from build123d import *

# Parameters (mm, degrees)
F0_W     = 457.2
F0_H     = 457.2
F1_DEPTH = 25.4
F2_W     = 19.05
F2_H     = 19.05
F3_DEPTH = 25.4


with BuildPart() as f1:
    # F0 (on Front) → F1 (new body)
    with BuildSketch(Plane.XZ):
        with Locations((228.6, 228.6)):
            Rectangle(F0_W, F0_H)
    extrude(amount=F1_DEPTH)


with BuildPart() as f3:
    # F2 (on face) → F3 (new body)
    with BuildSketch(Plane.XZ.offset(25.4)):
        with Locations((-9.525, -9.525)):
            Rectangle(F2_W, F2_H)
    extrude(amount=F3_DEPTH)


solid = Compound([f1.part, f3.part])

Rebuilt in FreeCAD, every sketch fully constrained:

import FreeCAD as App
import Part
import Sketcher

V = App.Vector
Q = App.Units.Quantity

doc = App.newDocument("Part")
body = doc.addObject("PartDesign::Body", "Body")

# Sketch on XZ plane
sketch1 = body.newObject("Sketcher::SketchObject", "Sketch")
sketch1.AttachmentSupport = (doc.getObject("XZ_Plane"), [""])
sketch1.MapMode = "FlatFace"
sketch1.addGeometry(Part.LineSegment(V(0, 457, 0), V(0, 0, 0)), False)
sketch1.addGeometry(Part.LineSegment(V(0, 0, 0), V(457, 0, 0)), False)
sketch1.addGeometry(Part.LineSegment(V(457, 0, 0), V(457, 457, 0)), False)
sketch1.addGeometry(Part.LineSegment(V(457, 457, 0), V(0, 457, 0)), False)
sketch1.addConstraint(Sketcher.Constraint("Coincident", 0, 2, 1, 1))
sketch1.addConstraint(Sketcher.Constraint("Coincident", 1, 2, 2, 1))
sketch1.addConstraint(Sketcher.Constraint("Coincident", 2, 2, 3, 1))
sketch1.addConstraint(Sketcher.Constraint("Coincident", 3, 2, 0, 1))
sketch1.addConstraint(Sketcher.Constraint("Vertical", 0))
sketch1.addConstraint(Sketcher.Constraint("Horizontal", 1))
sketch1.addConstraint(Sketcher.Constraint("Vertical", 2))
sketch1.addConstraint(Sketcher.Constraint("Horizontal", 3))
sketch1.addConstraint(Sketcher.Constraint("Coincident", 0, 2, -1, 1))
sketch1.addConstraint(Sketcher.Constraint("Equal", 3, 0))
sketch1.addConstraint(Sketcher.Constraint("DistanceX", 1, 1, 1, 2, Q("18 in")))
pad1 = body.newObject("PartDesign::Pad", "Pad")
pad1.Profile = sketch1
pad1.Length = Q("1 in")
body2 = doc.addObject("PartDesign::Body", "Body001")

# Sketch on XZ plane
sketch2 = body2.newObject("Sketcher::SketchObject", "Sketch001")
sketch2.AttachmentSupport = (doc.getObject("XZ_Plane001"), [""])
sketch2.MapMode = "FlatFace"
sketch2.AttachmentOffset = App.Placement(V(0, 0, 1 * 25.4), App.Rotation())
sketch2.addGeometry(Part.LineSegment(V(-19, 0, 0), V(-19, -19, 0)), False)
sketch2.addGeometry(Part.LineSegment(V(-19, -19, 0), V(0, -19, 0)), False)
sketch2.addGeometry(Part.LineSegment(V(0, -19, 0), V(0, 0, 0)), False)
sketch2.addGeometry(Part.LineSegment(V(0, 0, 0), V(-19, 0, 0)), False)
sketch2.addConstraint(Sketcher.Constraint("Coincident", 0, 2, 1, 1))
sketch2.addConstraint(Sketcher.Constraint("Coincident", 1, 2, 2, 1))
sketch2.addConstraint(Sketcher.Constraint("Coincident", 2, 2, 3, 1))
sketch2.addConstraint(Sketcher.Constraint("Coincident", 3, 2, 0, 1))
sketch2.addConstraint(Sketcher.Constraint("Vertical", 0))
sketch2.addConstraint(Sketcher.Constraint("Horizontal", 1))
sketch2.addConstraint(Sketcher.Constraint("Vertical", 2))
sketch2.addConstraint(Sketcher.Constraint("Horizontal", 3))
sketch2.addConstraint(Sketcher.Constraint("Coincident", 2, 2, -1, 1))
sketch2.addConstraint(Sketcher.Constraint("Equal", 3, 0))
sketch2.addConstraint(Sketcher.Constraint("DistanceX", 1, 1, 1, 2, Q("0.75 in")))
pad2 = body2.newObject("PartDesign::Pad", "Pad001")
pad2.Profile = sketch2
pad2.Length = Q("1 in")

doc.recompute()
